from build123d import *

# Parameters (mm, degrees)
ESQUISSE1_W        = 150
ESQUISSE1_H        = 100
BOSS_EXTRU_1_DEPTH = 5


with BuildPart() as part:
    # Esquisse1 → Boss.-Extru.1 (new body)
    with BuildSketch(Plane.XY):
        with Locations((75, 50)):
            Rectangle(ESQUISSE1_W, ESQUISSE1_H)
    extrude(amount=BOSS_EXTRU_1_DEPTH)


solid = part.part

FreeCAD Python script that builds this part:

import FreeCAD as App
import Part
import Sketcher

V = App.Vector


def add_polygon(sketch, points):
    """Adds a closed chain of lines whose ends are joined by coincident constraints."""
    first, n = sketch.GeometryCount, len(points)
    for a, b in zip(points, points[1:] + points[:1]):
        sketch.addGeometry(Part.LineSegment(App.Vector(*a, 0), App.Vector(*b, 0)), False)
    for i in range(n):
        sketch.addConstraint(Sketcher.Constraint("Coincident", first + i, 2, first + (i + 1) % n, 1))

doc = App.newDocument("Part")
body = doc.addObject("PartDesign::Body", "Body")

sketch1 = doc.addObject("Sketcher::SketchObject", "Sketch")
body.addObject(sketch1)
sketch1.AttachmentSupport = (doc.XY_Plane, [""])
sketch1.MapMode = "FlatFace"
add_polygon(sketch1, [(0, 100), (0, 0), (150, 0), (150, 100)])
sketch1.addConstraint([
    Sketcher.Constraint("Vertical", 0),
    Sketcher.Constraint("Horizontal", 1),
    Sketcher.Constraint("Vertical", 2),
    Sketcher.Constraint("Horizontal", 3),
    Sketcher.Constraint("Coincident", 0, 2, -1, 1),
    Sketcher.Constraint("DistanceX", 1, 1, 1, 2, 150.0),
    Sketcher.Constraint("DistanceY", 0, 2, 0, 1, 100.0),
])
pad1 = doc.addObject("PartDesign::Pad", "Pad")
body.addObject(pad1)
pad1.Profile = sketch1
pad1.Length = 5

doc.recompute()
